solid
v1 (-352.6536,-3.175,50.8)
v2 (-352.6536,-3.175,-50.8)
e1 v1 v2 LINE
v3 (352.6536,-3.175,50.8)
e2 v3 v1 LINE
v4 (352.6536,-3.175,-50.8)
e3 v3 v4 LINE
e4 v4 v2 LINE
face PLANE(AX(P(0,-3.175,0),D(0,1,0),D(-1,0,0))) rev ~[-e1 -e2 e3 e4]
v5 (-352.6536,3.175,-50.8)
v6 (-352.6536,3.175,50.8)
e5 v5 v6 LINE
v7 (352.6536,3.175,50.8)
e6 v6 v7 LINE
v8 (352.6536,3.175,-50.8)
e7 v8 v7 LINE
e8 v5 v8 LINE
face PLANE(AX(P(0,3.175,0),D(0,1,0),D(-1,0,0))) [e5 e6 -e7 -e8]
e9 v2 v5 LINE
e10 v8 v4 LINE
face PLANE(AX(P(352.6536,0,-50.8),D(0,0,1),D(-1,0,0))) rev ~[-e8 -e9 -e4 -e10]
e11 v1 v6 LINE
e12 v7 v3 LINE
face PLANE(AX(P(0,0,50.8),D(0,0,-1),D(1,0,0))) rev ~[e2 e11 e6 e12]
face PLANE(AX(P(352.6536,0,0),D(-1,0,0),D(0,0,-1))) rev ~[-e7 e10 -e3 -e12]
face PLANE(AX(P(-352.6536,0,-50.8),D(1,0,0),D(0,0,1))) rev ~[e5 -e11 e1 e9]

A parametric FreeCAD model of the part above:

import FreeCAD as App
import Part
import Sketcher

V = App.Vector
Q = App.Units.Quantity

doc = App.newDocument("Part")
body = doc.addObject("PartDesign::Body", "Body")

sketch1 = body.newObject("Sketcher::SketchObject", "Sketch")
sketch1.AttachmentSupport = (doc.getObject("XZ_Plane"), [""])
sketch1.MapMode = "FlatFace"
sketch1.addGeometry([
    Part.LineSegment(V(353, -51, 0), V(-353, -51, 0)),
    Part.LineSegment(V(-353, -51, 0), V(-353, 51, 0)),
    Part.LineSegment(V(-353, 51, 0), V(353, 51, 0)),
    Part.LineSegment(V(353, 51, 0), V(353, -51, 0)),
], False)
sketch1.addConstraint([
    Sketcher.Constraint("Coincident", 0, 2, 1, 1),
    Sketcher.Constraint("Coincident", 1, 2, 2, 1),
    Sketcher.Constraint("Coincident", 2, 2, 3, 1),
    Sketcher.Constraint("Coincident", 3, 2, 0, 1),
    Sketcher.Constraint("Horizontal", 0),
    Sketcher.Constraint("Vertical", 1),
    Sketcher.Constraint("Horizontal", 2),
    Sketcher.Constraint("Vertical", 3),
    Sketcher.Constraint("Symmetric", 0, 2, 2, 2, -1, 1),
    Sketcher.Constraint("DistanceY", 1, 1, 1, 2, Q("4 in")),
    Sketcher.Constraint("DistanceX", 0, 2, 0, 1, Q("27.768 in")),
])
pad1 = body.newObject("PartDesign::Pad", "Pad")
pad1.Profile = sketch1
pad1.Length = Q("0.25 in")
pad1.Midplane = True

doc.recompute()
